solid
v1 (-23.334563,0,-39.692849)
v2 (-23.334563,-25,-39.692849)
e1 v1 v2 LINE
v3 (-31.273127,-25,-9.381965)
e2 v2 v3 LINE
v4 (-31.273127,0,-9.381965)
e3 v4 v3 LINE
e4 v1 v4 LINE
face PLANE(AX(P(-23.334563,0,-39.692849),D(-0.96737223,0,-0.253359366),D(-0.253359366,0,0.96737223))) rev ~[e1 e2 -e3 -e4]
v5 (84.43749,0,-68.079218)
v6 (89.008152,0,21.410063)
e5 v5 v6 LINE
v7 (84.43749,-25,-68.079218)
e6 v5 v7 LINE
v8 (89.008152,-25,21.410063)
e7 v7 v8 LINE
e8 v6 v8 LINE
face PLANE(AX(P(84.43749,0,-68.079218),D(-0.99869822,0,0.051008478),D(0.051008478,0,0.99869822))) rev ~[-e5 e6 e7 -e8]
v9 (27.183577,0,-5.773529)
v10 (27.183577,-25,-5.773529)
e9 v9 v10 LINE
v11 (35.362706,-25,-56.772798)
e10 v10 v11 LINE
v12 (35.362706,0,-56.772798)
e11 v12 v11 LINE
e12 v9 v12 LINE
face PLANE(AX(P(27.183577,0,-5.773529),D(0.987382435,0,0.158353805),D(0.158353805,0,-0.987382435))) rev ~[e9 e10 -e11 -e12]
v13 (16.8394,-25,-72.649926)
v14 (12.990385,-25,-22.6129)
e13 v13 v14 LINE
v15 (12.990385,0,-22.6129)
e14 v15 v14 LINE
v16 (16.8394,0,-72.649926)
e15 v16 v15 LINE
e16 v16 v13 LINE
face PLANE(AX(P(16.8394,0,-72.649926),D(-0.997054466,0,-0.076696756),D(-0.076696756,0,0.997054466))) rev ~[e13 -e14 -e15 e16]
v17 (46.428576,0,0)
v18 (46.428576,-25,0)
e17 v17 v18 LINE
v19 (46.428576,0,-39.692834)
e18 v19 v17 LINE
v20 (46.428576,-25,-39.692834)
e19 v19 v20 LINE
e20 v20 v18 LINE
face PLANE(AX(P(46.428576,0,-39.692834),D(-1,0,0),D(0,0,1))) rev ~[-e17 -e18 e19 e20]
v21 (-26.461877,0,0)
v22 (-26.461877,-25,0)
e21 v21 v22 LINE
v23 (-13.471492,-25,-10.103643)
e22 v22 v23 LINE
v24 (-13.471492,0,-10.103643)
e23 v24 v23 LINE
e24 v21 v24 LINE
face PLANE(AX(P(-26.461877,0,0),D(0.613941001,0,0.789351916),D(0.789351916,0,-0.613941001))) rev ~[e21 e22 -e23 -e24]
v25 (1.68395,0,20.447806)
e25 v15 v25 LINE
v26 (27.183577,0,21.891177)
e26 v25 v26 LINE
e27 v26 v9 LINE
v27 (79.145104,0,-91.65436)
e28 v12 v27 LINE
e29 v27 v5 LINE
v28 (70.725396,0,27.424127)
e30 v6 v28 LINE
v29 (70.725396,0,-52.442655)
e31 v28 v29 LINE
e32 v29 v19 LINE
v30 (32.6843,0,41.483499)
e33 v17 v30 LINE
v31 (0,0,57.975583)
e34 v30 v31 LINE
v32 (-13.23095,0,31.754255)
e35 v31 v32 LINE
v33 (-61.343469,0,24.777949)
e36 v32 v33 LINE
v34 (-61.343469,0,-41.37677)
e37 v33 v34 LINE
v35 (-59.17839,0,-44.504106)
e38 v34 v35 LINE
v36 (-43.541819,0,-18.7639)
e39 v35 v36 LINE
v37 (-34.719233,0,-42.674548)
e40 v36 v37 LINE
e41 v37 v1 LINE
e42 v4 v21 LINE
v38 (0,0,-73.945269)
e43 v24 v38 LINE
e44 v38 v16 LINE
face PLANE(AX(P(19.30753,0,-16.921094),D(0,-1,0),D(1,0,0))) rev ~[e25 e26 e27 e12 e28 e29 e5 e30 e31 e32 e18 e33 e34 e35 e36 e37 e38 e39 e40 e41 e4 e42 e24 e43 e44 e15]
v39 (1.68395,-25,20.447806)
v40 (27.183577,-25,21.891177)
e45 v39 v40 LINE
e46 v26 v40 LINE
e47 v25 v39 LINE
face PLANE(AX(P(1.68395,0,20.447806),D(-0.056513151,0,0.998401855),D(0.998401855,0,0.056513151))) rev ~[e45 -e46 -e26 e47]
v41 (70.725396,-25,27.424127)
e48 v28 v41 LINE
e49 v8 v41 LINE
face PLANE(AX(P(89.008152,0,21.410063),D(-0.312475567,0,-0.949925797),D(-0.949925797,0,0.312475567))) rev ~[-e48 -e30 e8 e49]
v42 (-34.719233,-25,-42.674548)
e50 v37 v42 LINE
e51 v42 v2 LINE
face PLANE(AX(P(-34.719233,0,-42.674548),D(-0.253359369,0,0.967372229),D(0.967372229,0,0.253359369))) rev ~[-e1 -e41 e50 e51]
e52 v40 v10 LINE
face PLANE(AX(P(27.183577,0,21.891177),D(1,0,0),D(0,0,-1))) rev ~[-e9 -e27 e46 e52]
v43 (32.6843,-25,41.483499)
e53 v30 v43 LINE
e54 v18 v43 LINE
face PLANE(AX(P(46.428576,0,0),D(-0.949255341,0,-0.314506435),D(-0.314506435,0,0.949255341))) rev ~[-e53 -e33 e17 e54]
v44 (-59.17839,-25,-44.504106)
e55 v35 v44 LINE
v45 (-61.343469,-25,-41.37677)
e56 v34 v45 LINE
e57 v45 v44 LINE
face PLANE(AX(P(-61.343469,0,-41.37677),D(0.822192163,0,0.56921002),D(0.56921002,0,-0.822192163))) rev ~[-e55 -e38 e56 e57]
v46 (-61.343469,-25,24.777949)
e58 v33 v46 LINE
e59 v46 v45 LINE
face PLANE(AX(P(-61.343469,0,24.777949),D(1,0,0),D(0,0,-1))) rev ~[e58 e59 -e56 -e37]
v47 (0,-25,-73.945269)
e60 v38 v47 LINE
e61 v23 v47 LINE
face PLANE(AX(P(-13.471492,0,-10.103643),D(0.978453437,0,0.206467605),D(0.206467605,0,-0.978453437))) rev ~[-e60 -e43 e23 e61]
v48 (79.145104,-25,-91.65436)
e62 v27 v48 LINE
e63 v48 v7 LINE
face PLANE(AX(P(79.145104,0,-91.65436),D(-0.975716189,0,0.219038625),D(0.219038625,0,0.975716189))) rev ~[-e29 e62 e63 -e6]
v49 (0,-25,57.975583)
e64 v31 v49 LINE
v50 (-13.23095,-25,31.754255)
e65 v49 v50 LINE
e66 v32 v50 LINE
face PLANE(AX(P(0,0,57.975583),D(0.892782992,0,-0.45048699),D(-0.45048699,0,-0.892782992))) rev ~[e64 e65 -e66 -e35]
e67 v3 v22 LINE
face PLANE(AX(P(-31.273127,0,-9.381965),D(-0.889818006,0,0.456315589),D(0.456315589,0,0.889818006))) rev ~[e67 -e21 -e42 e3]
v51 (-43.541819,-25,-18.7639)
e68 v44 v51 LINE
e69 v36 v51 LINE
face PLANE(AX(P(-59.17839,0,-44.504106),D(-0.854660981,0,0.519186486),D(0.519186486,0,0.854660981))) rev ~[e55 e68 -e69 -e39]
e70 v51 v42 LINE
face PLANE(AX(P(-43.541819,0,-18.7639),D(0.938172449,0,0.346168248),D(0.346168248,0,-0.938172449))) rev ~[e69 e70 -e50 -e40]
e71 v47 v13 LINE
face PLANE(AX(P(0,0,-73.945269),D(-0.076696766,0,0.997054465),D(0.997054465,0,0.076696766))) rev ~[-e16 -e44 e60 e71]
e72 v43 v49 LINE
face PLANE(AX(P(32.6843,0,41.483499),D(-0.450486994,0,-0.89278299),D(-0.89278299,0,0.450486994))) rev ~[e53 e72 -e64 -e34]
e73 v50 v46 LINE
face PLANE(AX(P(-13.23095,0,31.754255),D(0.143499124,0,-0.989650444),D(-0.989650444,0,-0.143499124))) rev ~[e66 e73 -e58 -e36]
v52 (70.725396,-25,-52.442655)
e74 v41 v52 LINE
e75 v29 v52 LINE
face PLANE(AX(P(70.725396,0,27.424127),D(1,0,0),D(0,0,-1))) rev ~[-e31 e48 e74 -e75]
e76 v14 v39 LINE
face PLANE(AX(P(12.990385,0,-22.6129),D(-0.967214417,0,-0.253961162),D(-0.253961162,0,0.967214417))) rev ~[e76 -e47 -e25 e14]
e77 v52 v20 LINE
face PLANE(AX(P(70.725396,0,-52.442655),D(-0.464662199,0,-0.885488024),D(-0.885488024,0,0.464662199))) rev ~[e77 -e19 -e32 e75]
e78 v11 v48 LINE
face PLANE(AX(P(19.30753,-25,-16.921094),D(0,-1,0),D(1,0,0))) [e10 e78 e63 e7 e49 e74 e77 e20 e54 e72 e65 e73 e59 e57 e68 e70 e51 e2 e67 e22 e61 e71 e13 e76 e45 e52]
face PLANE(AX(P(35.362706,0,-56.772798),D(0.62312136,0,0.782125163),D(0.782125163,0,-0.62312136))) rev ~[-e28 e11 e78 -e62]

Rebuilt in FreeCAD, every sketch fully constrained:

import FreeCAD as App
import Part
import Sketcher

V = App.Vector


def add_polygon(sketch, points):
    """Adds a closed chain of lines whose ends are joined by coincident constraints."""
    first, n = sketch.GeometryCount, len(points)
    for a, b in zip(points, points[1:] + points[:1]):
        sketch.addGeometry(Part.LineSegment(App.Vector(*a, 0), App.Vector(*b, 0)), False)
    for i in range(n):
        sketch.addConstraint(Sketcher.Constraint("Coincident", first + i, 2, first + (i + 1) % n, 1))

doc = App.newDocument("Part")
params = doc.addObject("Spreadsheet::Sheet", "Params")
for row, (alias, value) in enumerate([
    ("pad1_length", "25 mm"),
], start=1):
    params.set(f"A{row}", alias)
    params.set(f"B{row}", "=" + value)
    params.setAlias(f"B{row}", alias)

body = doc.addObject("PartDesign::Body", "Body")

sketch1 = body.newObject("Sketcher::SketchObject", "Sketch")
sketch1.AttachmentSupport = (doc.getObject("XZ_Plane"), [""])
sketch1.MapMode = "FlatFace"
add_polygon(sketch1, [(-61.3, 24.8), (-61.3, -41.4), (-59.2, -44.5), (-43.5, -18.8), (-34.7, -42.7), (-23.3, -39.7), (-31.3, -9.4), (-26.5, 0), (-13.5, -10.1), (0, -73.9), (16.8, -72.6), (13, -22.6), (1.7, 20.4), (27.2, 21.9), (27.2, -5.8), (35.4, -56.8), (79.1, -91.7), (84.4, -68.1), (89, 21.4), (70.7, 27.4), (70.7, -52.4), (46.4, -39.7), (46.4, 0), (32.7, 41.5), (0, 58), (-13.2, 31.8)])
sketch1.addConstraint(Sketcher.Constraint("Vertical", 0))
sketch1.addConstraint(Sketcher.Constraint("Vertical", 13))
sketch1.addConstraint(Sketcher.Constraint("Vertical", 19))
sketch1.addConstraint(Sketcher.Constraint("Vertical", 21))
sketch1.addConstraint(Sketcher.Constraint("PointOnObject", 6, 2, -1))
sketch1.addConstraint(Sketcher.Constraint("PointOnObject", 8, 2, -2))
sketch1.addConstraint(Sketcher.Constraint("PointOnObject", 21, 2, -1))
sketch1.addConstraint(Sketcher.Constraint("PointOnObject", 23, 2, -2))
sketch1.addConstraint(Sketcher.Constraint("Perpendicular", 4, 5))
sketch1.addConstraint(Sketcher.Constraint("Perpendicular", 9, 10))
sketch1.addConstraint(Sketcher.Constraint("Perpendicular", 23, 24))
sketch1.addConstraint(Sketcher.Constraint("DistanceX", 13, 2, 20, 2, 19.244999))
sketch1.addConstraint(Sketcher.Constraint("DistanceY", 0, 2, 0, 1, 66.154719))
sketch1.addConstraint(Sketcher.Constraint("DistanceY", 19, 2, 19, 1, 79.866782))
sketch1.addConstraint(Sketcher.Constraint("DistanceY", 2, 2, -1, 1, 18.7639))
sketch1.addConstraint(Sketcher.Constraint("DistanceX", -1, 1, 9, 2, 16.8394))
sketch1.addConstraint(Sketcher.Constraint("DistanceY", 10, 2, -1, 1, 22.6129))
sketch1.addConstraint(Sketcher.Constraint("DistanceY", 14, 2, -1, 1, 56.772798))
sketch1.addConstraint(Sketcher.Constraint("DistanceX", -1, 1, 22, 2, 32.6843))
sketch1.addConstraint(Sketcher.Constraint("DistanceY", -1, 1, 22, 2, 41.483499))
sketch1.addConstraint(Sketcher.Constraint("DistanceY", 3, 2, 4, 2, 2.981699))
sketch1.addConstraint(Sketcher.Constraint("DistanceY", 8, 2, 0, 2, 32.568499))
sketch1.addConstraint(Sketcher.Constraint("DistanceX", 11, 2, 17, 2, 87.324202))
sketch1.addConstraint(Sketcher.Constraint("DistanceX", 24, 2, 11, 2, 14.9149))
sketch1.addConstraint(Sketcher.Constraint("Distance", 3, 25.48641))
sketch1.addConstraint(Sketcher.Constraint("Distance", 6, 10.54369))
sketch1.addConstraint(Sketcher.Constraint("Distance", 11, 44.520331))
sketch1.addConstraint(Sketcher.Constraint("Distance", 14, 51.650979))
sketch1.addConstraint(Sketcher.Constraint("Distance", 15, 55.978762))
sketch1.addConstraint(Sketcher.Constraint("Distance", 17, 89.605928))
sketch1.addConstraint(Sketcher.Constraint("Distance", 18, 19.24651))
sketch1.addConstraint(Sketcher.Constraint("Distance", 25, 48.61567))
sketch1.addConstraint(Sketcher.Constraint("DistanceY", 13, 2, 13, 1, 27.664706))
sketch1.addConstraint(Sketcher.Constraint("DistanceY", 21, 1, 21, 2, 39.692834))
sketch1.addConstraint(Sketcher.Constraint("DistanceX", 0, 2, -1, 1, 61.343469))
sketch1.addConstraint(Sketcher.Constraint("DistanceY", 0, 2, -1, 1, 41.37677))
sketch1.addConstraint(Sketcher.Constraint("DistanceX", 1, 2, -1, 1, 59.17839))
sketch1.addConstraint(Sketcher.Constraint("DistanceX", 2, 2, -1, 1, 43.541819))
sketch1.addConstraint(Sketcher.Constraint("DistanceY", 4, 2, -1, 1, 39.692849))
sketch1.addConstraint(Sketcher.Constraint("DistanceX", -1, 1, 11, 2, 1.68395))
sketch1.addConstraint(Sketcher.Constraint("DistanceY", 13, 2, -1, 1, 5.773529))
sketch1.addConstraint(Sketcher.Constraint("DistanceY", 15, 2, -1, 1, 91.65436))
sketch1.addConstraint(Sketcher.Constraint("DistanceX", -1, 1, 16, 2, 84.43749))
sketch1.addConstraint(Sketcher.Constraint("DistanceX", 3, 2, 4, 2, 11.38467))
sketch1.addConstraint(Sketcher.Constraint("DistanceX", 2, 2, 5, 2, 12.268692))
sketch1.addConstraint(Sketcher.Constraint("DistanceY", 1, 2, 5, 2, 35.122141))
sketch1.addConstraint(Sketcher.Constraint("DistanceY", 7, 2, 5, 2, 0.721678))
sketch1.addConstraint(Sketcher.Constraint("DistanceX", 4, 2, 7, 2, 9.863071))
sketch1.addConstraint(Sketcher.Constraint("DistanceY", 9, 2, 5, 2, 63.267961))
sketch1.addConstraint(Sketcher.Constraint("DistanceX", 7, 2, 12, 2, 40.655069))
sketch1.addConstraint(Sketcher.Constraint("DistanceY", 15, 2, 16, 2, 23.575142))
sketch1.addConstraint(Sketcher.Constraint("DistanceX", 12, 2, 18, 2, 43.541819))
pad1 = body.newObject("PartDesign::Pad", "Pad")
pad1.Profile = sketch1
pad1.setExpression("Length", "Params.pad1_length")

doc.recompute()
